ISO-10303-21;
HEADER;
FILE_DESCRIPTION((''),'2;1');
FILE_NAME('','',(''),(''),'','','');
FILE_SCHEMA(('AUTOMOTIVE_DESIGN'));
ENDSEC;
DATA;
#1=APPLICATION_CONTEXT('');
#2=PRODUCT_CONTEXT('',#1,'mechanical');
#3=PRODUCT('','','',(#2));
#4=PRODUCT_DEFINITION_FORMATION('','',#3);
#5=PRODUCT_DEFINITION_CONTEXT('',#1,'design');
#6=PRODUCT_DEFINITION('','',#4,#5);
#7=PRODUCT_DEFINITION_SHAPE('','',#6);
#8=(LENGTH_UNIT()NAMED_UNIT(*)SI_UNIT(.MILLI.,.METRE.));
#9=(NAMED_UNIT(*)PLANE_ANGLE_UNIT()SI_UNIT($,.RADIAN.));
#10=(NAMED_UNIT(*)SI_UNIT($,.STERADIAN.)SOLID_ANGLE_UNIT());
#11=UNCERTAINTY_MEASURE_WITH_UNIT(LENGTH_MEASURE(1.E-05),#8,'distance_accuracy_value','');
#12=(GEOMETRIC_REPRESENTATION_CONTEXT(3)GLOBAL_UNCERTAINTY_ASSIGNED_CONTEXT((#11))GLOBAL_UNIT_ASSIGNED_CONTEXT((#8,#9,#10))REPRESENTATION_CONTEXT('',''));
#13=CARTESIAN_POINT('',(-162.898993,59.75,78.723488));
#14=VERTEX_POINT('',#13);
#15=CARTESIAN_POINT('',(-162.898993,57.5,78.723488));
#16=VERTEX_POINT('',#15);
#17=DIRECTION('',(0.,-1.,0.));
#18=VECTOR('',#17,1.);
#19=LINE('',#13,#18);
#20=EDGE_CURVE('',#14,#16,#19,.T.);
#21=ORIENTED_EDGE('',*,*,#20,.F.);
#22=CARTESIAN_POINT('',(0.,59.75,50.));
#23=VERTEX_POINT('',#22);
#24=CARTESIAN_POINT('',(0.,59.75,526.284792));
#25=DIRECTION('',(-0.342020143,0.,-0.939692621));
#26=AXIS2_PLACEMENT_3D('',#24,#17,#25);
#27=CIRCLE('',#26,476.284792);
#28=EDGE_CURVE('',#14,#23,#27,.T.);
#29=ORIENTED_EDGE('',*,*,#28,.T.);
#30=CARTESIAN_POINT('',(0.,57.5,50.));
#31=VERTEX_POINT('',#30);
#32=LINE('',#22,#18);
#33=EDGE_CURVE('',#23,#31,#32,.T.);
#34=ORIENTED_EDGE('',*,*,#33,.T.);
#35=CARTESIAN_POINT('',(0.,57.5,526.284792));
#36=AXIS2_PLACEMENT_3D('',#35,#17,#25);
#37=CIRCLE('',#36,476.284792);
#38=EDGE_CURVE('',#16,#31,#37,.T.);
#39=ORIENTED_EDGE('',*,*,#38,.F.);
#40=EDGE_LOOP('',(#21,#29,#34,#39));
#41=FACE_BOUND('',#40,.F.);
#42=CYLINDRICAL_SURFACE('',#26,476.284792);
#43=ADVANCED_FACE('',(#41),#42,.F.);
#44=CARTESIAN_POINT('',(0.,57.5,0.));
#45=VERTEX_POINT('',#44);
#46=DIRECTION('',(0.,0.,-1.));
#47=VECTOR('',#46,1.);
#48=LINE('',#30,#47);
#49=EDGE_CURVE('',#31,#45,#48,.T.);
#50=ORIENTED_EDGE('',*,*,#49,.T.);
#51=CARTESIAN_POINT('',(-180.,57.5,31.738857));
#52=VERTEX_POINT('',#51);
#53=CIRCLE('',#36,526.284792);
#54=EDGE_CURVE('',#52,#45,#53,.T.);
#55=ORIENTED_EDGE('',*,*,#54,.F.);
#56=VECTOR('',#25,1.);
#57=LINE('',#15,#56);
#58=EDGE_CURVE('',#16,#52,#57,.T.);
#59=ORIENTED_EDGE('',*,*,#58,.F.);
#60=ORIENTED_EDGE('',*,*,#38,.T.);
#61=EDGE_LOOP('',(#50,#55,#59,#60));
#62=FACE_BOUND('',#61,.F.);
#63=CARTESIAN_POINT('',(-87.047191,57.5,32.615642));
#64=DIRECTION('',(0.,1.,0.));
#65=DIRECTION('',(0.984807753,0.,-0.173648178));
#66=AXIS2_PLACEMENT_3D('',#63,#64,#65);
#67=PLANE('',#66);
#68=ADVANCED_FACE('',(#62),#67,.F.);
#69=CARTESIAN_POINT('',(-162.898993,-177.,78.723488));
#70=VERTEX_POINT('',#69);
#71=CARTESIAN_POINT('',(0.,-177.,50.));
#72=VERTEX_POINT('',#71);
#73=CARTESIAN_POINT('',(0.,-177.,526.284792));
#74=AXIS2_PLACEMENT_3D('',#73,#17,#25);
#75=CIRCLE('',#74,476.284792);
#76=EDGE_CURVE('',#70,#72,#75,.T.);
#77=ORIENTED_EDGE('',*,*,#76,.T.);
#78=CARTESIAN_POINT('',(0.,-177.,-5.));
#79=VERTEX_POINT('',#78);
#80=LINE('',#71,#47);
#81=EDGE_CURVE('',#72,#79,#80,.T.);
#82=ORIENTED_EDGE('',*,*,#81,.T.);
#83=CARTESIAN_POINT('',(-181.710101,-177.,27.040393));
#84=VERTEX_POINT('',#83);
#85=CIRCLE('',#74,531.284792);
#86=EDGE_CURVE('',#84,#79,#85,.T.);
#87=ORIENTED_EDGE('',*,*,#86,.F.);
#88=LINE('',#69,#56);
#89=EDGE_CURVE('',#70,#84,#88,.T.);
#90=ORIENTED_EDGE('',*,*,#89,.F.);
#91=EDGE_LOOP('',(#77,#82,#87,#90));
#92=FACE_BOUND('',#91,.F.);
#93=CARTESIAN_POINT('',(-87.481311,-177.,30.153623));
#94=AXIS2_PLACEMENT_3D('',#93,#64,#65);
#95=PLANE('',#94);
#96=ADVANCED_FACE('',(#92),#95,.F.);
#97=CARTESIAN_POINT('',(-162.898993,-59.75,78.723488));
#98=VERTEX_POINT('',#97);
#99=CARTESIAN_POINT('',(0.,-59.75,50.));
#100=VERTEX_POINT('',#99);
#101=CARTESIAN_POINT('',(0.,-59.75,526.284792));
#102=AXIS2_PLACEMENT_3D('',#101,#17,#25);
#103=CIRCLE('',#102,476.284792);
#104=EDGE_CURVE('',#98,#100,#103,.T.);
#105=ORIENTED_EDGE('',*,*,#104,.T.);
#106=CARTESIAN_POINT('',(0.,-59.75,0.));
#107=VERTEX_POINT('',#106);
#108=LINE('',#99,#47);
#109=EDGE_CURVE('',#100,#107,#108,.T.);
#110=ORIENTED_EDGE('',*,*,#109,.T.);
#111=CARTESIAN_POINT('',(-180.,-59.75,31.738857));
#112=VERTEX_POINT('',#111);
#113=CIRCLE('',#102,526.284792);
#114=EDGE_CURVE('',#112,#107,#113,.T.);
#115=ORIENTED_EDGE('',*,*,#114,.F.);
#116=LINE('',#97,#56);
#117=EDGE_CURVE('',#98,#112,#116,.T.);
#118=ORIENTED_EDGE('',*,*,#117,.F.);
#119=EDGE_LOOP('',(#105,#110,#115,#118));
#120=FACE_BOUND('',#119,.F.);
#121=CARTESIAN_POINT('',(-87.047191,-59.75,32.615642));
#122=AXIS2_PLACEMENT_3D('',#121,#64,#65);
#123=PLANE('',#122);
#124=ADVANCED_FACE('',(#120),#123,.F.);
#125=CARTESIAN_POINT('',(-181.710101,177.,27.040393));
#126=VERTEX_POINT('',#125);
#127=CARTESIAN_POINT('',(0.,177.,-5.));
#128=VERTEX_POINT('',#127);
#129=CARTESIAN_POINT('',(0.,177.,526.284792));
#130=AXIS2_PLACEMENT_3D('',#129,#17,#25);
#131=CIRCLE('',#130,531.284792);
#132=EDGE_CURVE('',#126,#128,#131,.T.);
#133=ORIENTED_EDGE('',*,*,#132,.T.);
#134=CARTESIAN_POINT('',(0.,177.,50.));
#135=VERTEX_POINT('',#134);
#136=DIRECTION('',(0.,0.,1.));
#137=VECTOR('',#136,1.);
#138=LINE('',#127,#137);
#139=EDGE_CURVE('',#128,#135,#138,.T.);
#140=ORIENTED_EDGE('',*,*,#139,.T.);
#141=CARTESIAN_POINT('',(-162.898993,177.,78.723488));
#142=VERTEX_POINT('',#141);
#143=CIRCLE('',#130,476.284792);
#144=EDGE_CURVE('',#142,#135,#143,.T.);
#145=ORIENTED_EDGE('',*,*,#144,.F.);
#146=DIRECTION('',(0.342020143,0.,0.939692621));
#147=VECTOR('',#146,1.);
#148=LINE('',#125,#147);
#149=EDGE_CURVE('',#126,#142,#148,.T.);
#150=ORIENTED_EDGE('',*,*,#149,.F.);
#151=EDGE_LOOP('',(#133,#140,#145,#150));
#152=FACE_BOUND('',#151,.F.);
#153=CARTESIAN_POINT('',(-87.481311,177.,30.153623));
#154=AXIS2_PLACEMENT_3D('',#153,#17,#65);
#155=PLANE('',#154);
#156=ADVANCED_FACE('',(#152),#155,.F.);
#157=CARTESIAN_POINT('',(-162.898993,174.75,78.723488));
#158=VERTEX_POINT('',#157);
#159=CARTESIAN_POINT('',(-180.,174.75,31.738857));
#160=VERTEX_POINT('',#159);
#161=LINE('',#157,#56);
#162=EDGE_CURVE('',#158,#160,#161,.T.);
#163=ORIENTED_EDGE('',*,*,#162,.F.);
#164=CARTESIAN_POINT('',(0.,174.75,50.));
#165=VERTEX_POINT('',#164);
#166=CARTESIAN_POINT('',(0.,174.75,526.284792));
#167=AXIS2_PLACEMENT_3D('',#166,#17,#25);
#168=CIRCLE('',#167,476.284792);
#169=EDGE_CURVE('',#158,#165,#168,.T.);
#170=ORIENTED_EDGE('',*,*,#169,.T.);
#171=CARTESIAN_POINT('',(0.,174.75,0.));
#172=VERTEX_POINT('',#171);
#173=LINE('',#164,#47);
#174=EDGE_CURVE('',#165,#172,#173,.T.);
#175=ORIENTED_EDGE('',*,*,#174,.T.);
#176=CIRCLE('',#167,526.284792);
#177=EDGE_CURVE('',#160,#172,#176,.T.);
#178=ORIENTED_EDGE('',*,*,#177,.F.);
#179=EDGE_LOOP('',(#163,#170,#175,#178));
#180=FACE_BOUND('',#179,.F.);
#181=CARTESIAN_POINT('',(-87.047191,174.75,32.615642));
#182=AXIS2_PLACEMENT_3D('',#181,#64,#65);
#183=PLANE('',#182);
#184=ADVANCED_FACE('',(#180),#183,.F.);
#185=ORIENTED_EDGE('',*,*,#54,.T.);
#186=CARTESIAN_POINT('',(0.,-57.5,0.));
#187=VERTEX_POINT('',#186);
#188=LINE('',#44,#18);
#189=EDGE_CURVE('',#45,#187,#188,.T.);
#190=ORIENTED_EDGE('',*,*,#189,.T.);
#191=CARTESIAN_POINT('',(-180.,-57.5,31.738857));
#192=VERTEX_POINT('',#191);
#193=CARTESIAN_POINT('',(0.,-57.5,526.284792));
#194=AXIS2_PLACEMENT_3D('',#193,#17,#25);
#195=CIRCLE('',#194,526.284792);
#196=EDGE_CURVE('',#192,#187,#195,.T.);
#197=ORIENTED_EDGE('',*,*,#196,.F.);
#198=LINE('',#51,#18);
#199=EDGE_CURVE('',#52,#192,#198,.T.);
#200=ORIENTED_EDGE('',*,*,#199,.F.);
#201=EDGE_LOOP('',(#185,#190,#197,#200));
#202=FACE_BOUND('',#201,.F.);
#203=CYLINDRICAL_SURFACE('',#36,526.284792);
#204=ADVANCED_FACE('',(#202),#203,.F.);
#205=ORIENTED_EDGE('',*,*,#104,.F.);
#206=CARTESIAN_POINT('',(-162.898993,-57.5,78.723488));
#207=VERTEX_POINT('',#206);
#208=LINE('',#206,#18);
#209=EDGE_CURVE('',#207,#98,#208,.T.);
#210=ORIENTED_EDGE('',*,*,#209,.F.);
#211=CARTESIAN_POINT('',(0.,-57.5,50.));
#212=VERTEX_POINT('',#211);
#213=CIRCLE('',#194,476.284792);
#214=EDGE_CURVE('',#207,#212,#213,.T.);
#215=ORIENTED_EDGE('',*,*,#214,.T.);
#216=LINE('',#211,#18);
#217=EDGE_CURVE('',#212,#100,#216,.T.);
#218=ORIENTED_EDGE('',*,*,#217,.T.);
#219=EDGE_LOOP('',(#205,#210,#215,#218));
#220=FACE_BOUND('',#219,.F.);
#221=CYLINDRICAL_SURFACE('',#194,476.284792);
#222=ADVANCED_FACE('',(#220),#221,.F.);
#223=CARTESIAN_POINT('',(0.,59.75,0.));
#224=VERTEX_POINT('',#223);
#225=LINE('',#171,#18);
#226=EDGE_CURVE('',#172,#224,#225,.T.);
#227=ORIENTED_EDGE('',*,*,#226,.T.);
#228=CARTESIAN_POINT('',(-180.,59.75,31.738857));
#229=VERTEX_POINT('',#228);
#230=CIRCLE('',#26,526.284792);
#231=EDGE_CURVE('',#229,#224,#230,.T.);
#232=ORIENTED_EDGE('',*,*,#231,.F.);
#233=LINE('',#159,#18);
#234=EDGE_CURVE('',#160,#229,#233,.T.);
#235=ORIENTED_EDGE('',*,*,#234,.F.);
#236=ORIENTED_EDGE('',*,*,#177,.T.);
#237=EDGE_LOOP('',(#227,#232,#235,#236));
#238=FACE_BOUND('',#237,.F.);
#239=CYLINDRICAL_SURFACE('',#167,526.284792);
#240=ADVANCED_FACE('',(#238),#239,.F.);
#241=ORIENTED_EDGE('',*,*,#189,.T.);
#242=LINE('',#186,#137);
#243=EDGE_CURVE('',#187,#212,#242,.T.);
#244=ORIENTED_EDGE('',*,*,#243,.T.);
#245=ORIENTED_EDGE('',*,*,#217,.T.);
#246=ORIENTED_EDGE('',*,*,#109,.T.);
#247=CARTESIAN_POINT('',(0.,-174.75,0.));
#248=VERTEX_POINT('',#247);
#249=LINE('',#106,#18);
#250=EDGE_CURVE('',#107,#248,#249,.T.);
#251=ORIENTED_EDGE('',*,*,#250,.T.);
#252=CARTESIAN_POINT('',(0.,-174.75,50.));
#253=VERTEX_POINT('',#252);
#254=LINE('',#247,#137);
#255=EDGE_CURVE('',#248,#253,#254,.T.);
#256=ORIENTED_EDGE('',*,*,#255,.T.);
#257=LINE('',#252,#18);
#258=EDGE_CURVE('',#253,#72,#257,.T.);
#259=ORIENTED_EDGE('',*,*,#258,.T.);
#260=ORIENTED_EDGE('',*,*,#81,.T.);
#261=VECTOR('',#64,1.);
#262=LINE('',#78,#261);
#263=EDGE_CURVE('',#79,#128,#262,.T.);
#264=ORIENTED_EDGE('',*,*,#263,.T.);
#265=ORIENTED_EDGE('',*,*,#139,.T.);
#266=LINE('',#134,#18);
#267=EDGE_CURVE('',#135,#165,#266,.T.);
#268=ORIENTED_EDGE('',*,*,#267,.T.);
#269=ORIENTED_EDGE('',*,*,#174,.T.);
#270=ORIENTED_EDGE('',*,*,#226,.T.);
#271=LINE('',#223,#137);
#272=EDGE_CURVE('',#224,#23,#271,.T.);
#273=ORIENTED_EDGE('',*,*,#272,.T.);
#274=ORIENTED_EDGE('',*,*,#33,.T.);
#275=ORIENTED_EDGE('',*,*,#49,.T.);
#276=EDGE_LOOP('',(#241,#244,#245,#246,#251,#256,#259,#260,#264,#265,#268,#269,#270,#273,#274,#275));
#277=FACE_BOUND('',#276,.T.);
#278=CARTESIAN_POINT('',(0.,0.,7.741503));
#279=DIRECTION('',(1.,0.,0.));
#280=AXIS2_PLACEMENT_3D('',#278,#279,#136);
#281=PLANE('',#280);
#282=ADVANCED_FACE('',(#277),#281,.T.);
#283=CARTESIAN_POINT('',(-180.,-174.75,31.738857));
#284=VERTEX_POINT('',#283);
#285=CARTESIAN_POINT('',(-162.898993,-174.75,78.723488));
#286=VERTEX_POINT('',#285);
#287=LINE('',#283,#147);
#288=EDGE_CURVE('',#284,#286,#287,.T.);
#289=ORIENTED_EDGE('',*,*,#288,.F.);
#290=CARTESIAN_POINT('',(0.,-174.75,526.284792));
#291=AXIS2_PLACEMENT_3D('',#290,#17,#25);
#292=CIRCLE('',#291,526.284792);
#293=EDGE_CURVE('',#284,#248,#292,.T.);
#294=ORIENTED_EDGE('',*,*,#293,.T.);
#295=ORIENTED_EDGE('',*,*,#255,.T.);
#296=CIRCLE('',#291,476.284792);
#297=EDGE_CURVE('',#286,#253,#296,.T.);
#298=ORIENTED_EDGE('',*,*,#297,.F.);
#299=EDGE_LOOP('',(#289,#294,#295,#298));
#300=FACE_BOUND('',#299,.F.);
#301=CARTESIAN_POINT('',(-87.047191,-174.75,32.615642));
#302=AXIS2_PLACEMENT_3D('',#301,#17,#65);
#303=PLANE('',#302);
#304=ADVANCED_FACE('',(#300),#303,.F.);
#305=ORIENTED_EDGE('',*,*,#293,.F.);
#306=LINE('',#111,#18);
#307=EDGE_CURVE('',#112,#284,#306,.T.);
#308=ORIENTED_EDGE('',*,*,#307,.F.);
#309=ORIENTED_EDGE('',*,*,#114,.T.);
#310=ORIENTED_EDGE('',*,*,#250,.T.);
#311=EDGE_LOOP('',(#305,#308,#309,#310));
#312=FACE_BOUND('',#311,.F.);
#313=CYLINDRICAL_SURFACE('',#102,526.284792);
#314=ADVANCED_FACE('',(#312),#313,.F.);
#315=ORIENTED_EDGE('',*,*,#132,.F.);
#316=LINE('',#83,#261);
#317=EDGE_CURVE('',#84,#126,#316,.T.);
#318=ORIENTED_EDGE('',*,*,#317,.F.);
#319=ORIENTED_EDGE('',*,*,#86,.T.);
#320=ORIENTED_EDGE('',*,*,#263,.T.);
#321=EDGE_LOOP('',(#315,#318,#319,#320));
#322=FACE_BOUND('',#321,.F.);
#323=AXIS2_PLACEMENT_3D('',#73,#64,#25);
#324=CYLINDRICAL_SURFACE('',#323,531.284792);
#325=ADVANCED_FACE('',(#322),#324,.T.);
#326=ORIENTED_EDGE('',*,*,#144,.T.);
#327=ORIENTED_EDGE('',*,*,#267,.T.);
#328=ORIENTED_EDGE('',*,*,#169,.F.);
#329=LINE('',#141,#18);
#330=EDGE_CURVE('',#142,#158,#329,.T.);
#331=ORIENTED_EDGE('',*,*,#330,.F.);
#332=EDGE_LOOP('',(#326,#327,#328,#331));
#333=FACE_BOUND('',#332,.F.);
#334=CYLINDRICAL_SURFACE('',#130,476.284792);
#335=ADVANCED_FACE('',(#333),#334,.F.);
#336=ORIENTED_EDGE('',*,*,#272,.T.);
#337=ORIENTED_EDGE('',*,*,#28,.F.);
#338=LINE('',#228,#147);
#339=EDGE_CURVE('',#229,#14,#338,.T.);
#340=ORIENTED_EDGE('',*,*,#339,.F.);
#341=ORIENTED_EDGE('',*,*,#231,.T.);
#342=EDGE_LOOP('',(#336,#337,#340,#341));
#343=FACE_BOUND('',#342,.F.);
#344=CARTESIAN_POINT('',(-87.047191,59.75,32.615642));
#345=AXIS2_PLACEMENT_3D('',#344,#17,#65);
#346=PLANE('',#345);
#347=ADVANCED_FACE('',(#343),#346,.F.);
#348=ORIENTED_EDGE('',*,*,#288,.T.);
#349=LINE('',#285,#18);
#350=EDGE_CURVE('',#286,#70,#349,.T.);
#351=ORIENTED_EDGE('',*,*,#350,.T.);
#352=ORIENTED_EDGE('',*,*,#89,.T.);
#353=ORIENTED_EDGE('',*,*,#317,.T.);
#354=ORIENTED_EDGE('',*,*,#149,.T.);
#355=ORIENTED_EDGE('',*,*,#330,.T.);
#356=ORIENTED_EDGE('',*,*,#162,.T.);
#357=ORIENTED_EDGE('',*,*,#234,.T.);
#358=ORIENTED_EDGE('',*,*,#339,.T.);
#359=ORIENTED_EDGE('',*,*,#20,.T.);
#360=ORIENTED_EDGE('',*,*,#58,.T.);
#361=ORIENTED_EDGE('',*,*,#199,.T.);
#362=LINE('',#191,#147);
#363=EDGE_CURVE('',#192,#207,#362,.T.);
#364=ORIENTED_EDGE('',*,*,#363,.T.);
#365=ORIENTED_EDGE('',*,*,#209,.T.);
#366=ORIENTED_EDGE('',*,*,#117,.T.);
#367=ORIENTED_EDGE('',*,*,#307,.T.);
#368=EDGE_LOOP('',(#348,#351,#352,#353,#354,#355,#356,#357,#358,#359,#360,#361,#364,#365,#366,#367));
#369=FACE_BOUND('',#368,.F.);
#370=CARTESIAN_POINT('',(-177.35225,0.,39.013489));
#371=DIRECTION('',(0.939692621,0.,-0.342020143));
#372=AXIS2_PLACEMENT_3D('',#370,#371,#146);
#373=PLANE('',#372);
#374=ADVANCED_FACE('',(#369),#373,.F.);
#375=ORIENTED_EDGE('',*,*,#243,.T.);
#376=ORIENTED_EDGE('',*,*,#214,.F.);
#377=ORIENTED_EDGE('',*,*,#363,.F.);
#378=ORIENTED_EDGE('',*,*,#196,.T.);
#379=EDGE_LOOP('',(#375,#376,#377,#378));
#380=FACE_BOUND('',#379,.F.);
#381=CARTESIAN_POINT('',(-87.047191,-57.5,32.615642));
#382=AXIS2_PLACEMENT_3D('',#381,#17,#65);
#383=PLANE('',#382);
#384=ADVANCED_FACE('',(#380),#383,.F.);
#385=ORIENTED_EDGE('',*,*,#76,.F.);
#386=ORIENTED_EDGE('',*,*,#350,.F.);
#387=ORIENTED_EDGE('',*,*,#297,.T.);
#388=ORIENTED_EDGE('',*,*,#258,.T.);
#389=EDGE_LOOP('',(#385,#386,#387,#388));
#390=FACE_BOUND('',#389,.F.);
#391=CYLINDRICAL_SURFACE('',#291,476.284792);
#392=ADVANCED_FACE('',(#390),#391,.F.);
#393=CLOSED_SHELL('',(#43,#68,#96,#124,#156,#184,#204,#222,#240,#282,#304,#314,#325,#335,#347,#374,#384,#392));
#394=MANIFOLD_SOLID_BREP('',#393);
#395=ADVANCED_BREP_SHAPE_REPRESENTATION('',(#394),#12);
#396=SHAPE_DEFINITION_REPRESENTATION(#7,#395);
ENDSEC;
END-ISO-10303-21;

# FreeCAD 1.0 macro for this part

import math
import FreeCAD as App
import Part
import Sketcher

V = App.Vector
Q = App.Units.Quantity

doc = App.newDocument("Part")
body = doc.addObject("PartDesign::Body", "Body")

sketch1 = body.newObject("Sketcher::SketchObject", "Sketch")
sketch1.AttachmentSupport = (doc.getObject("YZ_Plane"), [""])
sketch1.MapMode = "FlatFace"
sketch1.addGeometry([
    Part.LineSegment(V(57.5, 0, 0), V(-57.5, 0, 0)),
    Part.LineSegment(V(-57.5, 0, 0), V(-57.5, 50, 0)),
    Part.LineSegment(V(-57.5, 50, 0), V(-59.8, 50, 0)),
    Part.LineSegment(V(-59.8, 50, 0), V(-59.8, 0, 0)),
    Part.LineSegment(V(-59.8, 0, 0), V(-174.8, 0, 0)),
    Part.LineSegment(V(-174.8, 0, 0), V(-174.8, 50, 0)),
    Part.LineSegment(V(-174.8, 50, 0), V(-177, 50, 0)),
    Part.LineSegment(V(-177, 50, 0), V(-177, -5, 0)),
    Part.LineSegment(V(-177, -5, 0), V(177, -5, 0)),
    Part.LineSegment(V(177, -5, 0), V(177, 50, 0)),
    Part.LineSegment(V(177, 50, 0), V(174.8, 50, 0)),
    Part.LineSegment(V(174.8, 50, 0), V(174.8, 0, 0)),
    Part.LineSegment(V(174.8, 0, 0), V(59.8, 0, 0)),
    Part.LineSegment(V(59.8, 0, 0), V(59.8, 50, 0)),
    Part.LineSegment(V(59.8, 50, 0), V(57.5, 50, 0)),
    Part.LineSegment(V(57.5, 50, 0), V(57.5, 0, 0)),
], False)
sketch1.addConstraint([
    Sketcher.Constraint("Coincident", 0, 2, 1, 1),
    Sketcher.Constraint("Coincident", 1, 2, 2, 1),
    Sketcher.Constraint("Coincident", 2, 2, 3, 1),
    Sketcher.Constraint("Coincident", 3, 2, 4, 1),
    Sketcher.Constraint("Coincident", 4, 2, 5, 1),
    Sketcher.Constraint("Coincident", 5, 2, 6, 1),
    Sketcher.Constraint("Coincident", 6, 2, 7, 1),
    Sketcher.Constraint("Coincident", 7, 2, 8, 1),
    Sketcher.Constraint("Coincident", 8, 2, 9, 1),
    Sketcher.Constraint("Coincident", 9, 2, 10, 1),
    Sketcher.Constraint("Coincident", 10, 2, 11, 1),
    Sketcher.Constraint("Coincident", 11, 2, 12, 1),
    Sketcher.Constraint("Coincident", 12, 2, 13, 1),
    Sketcher.Constraint("Coincident", 13, 2, 14, 1),
    Sketcher.Constraint("Coincident", 14, 2, 15, 1),
    Sketcher.Constraint("Coincident", 15, 2, 0, 1),
    Sketcher.Constraint("Horizontal", 0),
    Sketcher.Constraint("Vertical", 1),
    Sketcher.Constraint("Horizontal", 2),
    Sketcher.Constraint("Vertical", 3),
    Sketcher.Constraint("Horizontal", 4),
    Sketcher.Constraint("Vertical", 5),
    Sketcher.Constraint("Horizontal", 6),
    Sketcher.Constraint("Vertical", 7),
    Sketcher.Constraint("Horizontal", 8),
    Sketcher.Constraint("Vertical", 9),
    Sketcher.Constraint("Horizontal", 10),
    Sketcher.Constraint("Vertical", 11),
    Sketcher.Constraint("Horizontal", 12),
    Sketcher.Constraint("Vertical", 13),
    Sketcher.Constraint("Horizontal", 14),
    Sketcher.Constraint("Vertical", 15),
    Sketcher.Constraint("Symmetric", 4, 2, 11, 2, -1, 1),
    Sketcher.Constraint("Symmetric", 0, 2, 15, 2, -1, 1),
    Sketcher.Constraint("Symmetric", 6, 2, 9, 2, -2),
    Sketcher.Constraint("Symmetric", 3, 2, 12, 2, -2),
    Sketcher.Constraint("Horizontal", 2, 2, 5, 2),
    Sketcher.Constraint("Horizontal", 10, 2, 13, 2),
    Sketcher.Constraint("Equal", 0, 4),
    Sketcher.Constraint("Equal", 2, 6),
    Sketcher.Constraint("DistanceX", 0, 2, 0, 1, Q("115 mm")),
    Sketcher.Constraint("DistanceX", 8, 1, 8, 2, Q("354 mm")),
    Sketcher.Constraint("DistanceY", 1, 1, 1, 2, Q("50 mm")),
    Sketcher.Constraint("DistanceY", 7, 2, 7, 1, Q("55 mm")),
])

sketch2 = body.newObject("Sketcher::SketchObject", "Sketch001")
sketch2.AttachmentSupport = (doc.getObject("XZ_Plane"), [""])
sketch2.MapMode = "FlatFace"
sketch2.addGeometry(Part.ArcOfCircle(Part.Circle(V(0, 526, 0), V(0, 0, 1), 526), math.radians(-110), math.radians(-90)), False)
sketch2.addConstraint([
    Sketcher.Constraint("Coincident", 0, 2, -1, 1),
    Sketcher.Constraint("PointOnObject", 0, 3, -2),
    Sketcher.Constraint("DistanceX", 0, 1, -1, 1, Q("180 mm")),
    Sketcher.Constraint("Radius", 0, Q("526.284792 mm")),
])
doc.recompute()

additivepipe = body.newObject("PartDesign::AdditivePipe", "AdditivePipe")
additivepipe.Profile = sketch1
additivepipe.Spine = (sketch2, ["Edge1"])

doc.recompute()
